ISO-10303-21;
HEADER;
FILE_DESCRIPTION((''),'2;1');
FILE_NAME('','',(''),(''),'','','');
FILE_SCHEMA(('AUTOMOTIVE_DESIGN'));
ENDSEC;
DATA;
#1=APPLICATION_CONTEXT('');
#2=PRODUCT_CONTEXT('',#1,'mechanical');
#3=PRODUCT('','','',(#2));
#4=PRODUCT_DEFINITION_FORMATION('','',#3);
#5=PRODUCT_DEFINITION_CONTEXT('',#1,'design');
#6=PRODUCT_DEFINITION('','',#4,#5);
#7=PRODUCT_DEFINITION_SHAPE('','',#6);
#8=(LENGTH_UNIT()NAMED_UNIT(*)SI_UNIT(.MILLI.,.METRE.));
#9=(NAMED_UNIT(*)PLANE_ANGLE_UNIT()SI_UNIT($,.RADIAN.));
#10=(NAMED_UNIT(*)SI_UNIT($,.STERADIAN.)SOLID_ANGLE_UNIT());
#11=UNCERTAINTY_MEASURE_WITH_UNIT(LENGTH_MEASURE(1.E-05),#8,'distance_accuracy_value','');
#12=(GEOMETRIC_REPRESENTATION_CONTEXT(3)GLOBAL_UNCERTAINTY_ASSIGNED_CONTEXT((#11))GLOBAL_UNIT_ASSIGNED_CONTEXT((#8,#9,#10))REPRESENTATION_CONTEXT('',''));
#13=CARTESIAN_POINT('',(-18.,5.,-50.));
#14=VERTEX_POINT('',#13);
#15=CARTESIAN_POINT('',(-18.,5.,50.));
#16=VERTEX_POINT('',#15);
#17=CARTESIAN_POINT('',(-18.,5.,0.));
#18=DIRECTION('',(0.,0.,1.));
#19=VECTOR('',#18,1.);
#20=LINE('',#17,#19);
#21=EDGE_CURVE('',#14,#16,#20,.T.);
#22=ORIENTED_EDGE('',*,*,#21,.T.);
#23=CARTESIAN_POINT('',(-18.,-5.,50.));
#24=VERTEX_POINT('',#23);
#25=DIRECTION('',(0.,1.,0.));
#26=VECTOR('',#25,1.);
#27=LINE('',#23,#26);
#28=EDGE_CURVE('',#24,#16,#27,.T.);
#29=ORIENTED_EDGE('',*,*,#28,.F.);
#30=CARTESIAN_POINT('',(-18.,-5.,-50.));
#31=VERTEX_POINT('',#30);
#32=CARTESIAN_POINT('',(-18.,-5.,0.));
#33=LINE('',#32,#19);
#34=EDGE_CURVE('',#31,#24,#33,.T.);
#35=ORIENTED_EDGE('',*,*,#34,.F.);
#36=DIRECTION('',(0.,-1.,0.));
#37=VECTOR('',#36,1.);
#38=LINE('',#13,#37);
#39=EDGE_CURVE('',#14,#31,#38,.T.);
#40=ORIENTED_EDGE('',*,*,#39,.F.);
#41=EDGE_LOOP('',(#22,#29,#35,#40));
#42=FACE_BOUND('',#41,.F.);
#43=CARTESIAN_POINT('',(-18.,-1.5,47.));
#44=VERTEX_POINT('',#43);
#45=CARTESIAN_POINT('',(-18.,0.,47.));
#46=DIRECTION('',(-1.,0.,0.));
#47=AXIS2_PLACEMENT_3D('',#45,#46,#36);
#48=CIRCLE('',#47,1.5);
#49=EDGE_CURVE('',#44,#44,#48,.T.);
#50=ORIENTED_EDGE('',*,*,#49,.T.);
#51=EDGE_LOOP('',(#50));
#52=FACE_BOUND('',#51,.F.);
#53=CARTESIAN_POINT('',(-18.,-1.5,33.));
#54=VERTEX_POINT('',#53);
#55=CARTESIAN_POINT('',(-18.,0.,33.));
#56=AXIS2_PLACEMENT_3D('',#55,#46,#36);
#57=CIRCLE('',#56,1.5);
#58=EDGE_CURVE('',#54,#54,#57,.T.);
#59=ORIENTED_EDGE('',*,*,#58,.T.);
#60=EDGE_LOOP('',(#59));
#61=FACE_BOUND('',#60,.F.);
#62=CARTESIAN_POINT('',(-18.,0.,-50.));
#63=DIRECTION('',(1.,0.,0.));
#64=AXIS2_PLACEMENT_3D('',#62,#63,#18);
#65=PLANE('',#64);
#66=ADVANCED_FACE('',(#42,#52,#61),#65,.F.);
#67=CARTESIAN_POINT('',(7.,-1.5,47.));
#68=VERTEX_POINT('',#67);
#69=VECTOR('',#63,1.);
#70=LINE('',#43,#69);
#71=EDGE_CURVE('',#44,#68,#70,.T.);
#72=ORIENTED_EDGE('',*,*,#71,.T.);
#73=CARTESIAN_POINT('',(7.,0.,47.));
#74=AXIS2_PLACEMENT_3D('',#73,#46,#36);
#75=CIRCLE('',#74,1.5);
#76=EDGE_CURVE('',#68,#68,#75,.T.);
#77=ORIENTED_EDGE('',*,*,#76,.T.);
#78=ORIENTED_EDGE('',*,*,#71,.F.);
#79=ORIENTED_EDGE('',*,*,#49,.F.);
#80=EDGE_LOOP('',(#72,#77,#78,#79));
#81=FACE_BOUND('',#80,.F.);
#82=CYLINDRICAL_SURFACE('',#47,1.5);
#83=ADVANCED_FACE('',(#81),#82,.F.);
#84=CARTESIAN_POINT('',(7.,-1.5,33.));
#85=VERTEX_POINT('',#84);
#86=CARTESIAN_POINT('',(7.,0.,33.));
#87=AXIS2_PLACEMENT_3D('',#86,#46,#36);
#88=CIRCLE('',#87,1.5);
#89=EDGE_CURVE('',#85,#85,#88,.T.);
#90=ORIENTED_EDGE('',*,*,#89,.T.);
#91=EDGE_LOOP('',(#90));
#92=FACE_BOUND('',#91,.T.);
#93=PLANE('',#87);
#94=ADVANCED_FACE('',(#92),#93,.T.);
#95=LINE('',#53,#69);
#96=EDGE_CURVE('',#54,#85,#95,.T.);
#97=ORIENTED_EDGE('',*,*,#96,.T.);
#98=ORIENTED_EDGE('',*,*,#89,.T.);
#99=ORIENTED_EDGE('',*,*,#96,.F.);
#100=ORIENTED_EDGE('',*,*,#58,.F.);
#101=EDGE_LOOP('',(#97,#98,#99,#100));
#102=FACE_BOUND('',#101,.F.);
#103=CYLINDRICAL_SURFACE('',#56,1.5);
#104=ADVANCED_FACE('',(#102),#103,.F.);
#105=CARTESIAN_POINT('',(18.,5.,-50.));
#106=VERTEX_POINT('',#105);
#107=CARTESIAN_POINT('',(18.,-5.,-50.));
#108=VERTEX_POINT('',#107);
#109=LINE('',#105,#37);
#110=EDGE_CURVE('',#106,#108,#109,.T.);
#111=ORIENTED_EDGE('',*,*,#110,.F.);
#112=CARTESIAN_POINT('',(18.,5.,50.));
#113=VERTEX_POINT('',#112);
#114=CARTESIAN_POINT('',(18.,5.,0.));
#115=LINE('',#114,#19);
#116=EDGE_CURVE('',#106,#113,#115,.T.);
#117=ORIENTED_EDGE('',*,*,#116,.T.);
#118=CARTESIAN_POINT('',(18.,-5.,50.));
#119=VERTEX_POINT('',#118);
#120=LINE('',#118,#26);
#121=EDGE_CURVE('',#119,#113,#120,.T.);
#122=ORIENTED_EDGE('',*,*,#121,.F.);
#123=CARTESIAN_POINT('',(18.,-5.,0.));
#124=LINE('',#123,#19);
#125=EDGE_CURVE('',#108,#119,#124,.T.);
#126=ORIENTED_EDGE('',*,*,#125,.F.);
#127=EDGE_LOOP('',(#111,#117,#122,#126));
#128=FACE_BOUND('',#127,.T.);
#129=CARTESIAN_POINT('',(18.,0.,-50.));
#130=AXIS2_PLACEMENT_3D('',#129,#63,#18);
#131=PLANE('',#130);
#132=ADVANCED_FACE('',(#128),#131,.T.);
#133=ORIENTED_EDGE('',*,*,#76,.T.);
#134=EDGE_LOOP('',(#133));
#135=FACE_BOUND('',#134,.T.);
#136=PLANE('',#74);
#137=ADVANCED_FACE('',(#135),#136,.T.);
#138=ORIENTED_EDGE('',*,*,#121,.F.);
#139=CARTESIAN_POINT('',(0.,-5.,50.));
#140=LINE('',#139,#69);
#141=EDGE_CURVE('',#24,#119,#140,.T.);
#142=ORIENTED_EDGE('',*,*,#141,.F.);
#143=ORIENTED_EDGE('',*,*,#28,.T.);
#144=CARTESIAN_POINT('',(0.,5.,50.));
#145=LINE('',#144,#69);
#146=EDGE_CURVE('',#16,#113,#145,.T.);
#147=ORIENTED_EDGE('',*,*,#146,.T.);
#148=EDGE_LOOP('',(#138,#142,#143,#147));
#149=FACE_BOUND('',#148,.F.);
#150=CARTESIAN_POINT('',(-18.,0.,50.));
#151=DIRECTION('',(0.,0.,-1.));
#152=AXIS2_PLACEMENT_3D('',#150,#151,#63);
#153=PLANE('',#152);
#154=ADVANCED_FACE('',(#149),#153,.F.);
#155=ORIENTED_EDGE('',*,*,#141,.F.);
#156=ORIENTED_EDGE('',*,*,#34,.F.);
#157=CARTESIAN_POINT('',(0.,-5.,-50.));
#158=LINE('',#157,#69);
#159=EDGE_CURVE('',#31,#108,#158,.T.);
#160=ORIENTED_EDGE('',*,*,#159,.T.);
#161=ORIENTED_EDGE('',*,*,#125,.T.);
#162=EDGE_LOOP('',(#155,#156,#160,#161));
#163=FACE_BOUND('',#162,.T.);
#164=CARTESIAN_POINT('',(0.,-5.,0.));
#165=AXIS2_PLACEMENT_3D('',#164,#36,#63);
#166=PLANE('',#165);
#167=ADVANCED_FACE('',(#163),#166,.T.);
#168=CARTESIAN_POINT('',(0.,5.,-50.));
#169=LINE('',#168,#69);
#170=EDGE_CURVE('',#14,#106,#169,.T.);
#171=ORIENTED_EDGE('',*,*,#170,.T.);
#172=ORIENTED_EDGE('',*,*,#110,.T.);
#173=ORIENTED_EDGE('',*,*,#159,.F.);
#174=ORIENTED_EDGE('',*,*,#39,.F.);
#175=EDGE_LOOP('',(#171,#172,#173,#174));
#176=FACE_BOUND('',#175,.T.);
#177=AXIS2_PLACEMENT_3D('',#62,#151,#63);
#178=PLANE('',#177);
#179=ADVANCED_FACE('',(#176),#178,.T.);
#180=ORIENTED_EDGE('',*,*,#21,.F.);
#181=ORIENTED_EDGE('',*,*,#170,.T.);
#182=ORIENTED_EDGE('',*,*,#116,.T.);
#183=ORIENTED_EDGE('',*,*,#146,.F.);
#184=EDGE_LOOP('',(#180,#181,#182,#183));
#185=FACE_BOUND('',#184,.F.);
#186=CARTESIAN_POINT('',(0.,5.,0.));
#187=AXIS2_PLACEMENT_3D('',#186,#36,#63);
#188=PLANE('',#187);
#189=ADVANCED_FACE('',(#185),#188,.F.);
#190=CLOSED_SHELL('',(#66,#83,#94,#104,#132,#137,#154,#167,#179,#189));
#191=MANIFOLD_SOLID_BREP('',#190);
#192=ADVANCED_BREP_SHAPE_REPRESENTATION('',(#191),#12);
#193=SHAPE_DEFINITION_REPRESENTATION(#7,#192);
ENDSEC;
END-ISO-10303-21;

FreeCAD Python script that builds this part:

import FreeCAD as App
import Part
import Sketcher

V = App.Vector
Q = App.Units.Quantity

doc = App.newDocument("Part")
body = doc.addObject("PartDesign::Body", "Body")

# Sketch on XZ plane
sketch1 = doc.addObject("Sketcher::SketchObject", "Sketch")
body.addObject(sketch1)
sketch1.AttachmentSupport = (doc.XZ_Plane, [""])
sketch1.MapMode = "FlatFace"
sketch1.addGeometry(Part.LineSegment(V(-18, 50, 0), V(-18, -50, 0)), False)
sketch1.addGeometry(Part.LineSegment(V(-18, -50, 0), V(18, -50, 0)), False)
sketch1.addGeometry(Part.LineSegment(V(18, -50, 0), V(18, 50, 0)), False)
sketch1.addGeometry(Part.LineSegment(V(18, 50, 0), V(-18, 50, 0)), False)
sketch1.addConstraint(Sketcher.Constraint("Coincident", 0, 2, 1, 1))
sketch1.addConstraint(Sketcher.Constraint("Coincident", 1, 2, 2, 1))
sketch1.addConstraint(Sketcher.Constraint("Coincident", 2, 2, 3, 1))
sketch1.addConstraint(Sketcher.Constraint("Coincident", 3, 2, 0, 1))
sketch1.addConstraint(Sketcher.Constraint("Vertical", 0))
sketch1.addConstraint(Sketcher.Constraint("Horizontal", 1))
sketch1.addConstraint(Sketcher.Constraint("Vertical", 2))
sketch1.addConstraint(Sketcher.Constraint("Horizontal", 3))
sketch1.addConstraint(Sketcher.Constraint("Symmetric", 0, 2, 2, 2, -1, 1))
sketch1.addConstraint(Sketcher.Constraint("DistanceX", 1, 1, 1, 2, Q("36 mm")))
sketch1.addConstraint(Sketcher.Constraint("DistanceY", 0, 2, 0, 1, Q("100 mm")))
pad1 = doc.addObject("PartDesign::Pad", "Pad")
body.addObject(pad1)
pad1.Profile = sketch1
pad1.Length = 10
pad1.Midplane = True

# Sketch on YZ plane
sketch2 = doc.addObject("Sketcher::SketchObject", "Sketch001")
body.addObject(sketch2)
sketch2.AttachmentSupport = (doc.YZ_Plane, [""])
sketch2.MapMode = "FlatFace"
sketch2.AttachmentOffset = App.Placement(V(0, 0, -18), App.Rotation())
sketch2.addGeometry(Part.Circle(V(0, 47, 0), V(0, 0, 1), 1.5), False)
sketch2.addGeometry(Part.Circle(V(0, 33, 0), V(0, 0, 1), 1.5), False)
sketch2.addConstraint(Sketcher.Constraint("Equal", 0, 1))
sketch2.addConstraint(Sketcher.Constraint("PointOnObject", 0, 3, -2))
sketch2.addConstraint(Sketcher.Constraint("PointOnObject", 1, 3, -2))
sketch2.addConstraint(Sketcher.Constraint("Diameter", 0, Q("3 mm")))
sketch2.addConstraint(Sketcher.Constraint("DistanceY", -1, 1, 0, 3, Q("47 mm")))
sketch2.addConstraint(Sketcher.Constraint("DistanceY", -1, 1, 1, 3, Q("33 mm")))
pocket1 = doc.addObject("PartDesign::Pocket", "Pocket")
body.addObject(pocket1)
pocket1.Profile = sketch2
pocket1.Length = 25
pocket1.Reversed = True

doc.recompute()
